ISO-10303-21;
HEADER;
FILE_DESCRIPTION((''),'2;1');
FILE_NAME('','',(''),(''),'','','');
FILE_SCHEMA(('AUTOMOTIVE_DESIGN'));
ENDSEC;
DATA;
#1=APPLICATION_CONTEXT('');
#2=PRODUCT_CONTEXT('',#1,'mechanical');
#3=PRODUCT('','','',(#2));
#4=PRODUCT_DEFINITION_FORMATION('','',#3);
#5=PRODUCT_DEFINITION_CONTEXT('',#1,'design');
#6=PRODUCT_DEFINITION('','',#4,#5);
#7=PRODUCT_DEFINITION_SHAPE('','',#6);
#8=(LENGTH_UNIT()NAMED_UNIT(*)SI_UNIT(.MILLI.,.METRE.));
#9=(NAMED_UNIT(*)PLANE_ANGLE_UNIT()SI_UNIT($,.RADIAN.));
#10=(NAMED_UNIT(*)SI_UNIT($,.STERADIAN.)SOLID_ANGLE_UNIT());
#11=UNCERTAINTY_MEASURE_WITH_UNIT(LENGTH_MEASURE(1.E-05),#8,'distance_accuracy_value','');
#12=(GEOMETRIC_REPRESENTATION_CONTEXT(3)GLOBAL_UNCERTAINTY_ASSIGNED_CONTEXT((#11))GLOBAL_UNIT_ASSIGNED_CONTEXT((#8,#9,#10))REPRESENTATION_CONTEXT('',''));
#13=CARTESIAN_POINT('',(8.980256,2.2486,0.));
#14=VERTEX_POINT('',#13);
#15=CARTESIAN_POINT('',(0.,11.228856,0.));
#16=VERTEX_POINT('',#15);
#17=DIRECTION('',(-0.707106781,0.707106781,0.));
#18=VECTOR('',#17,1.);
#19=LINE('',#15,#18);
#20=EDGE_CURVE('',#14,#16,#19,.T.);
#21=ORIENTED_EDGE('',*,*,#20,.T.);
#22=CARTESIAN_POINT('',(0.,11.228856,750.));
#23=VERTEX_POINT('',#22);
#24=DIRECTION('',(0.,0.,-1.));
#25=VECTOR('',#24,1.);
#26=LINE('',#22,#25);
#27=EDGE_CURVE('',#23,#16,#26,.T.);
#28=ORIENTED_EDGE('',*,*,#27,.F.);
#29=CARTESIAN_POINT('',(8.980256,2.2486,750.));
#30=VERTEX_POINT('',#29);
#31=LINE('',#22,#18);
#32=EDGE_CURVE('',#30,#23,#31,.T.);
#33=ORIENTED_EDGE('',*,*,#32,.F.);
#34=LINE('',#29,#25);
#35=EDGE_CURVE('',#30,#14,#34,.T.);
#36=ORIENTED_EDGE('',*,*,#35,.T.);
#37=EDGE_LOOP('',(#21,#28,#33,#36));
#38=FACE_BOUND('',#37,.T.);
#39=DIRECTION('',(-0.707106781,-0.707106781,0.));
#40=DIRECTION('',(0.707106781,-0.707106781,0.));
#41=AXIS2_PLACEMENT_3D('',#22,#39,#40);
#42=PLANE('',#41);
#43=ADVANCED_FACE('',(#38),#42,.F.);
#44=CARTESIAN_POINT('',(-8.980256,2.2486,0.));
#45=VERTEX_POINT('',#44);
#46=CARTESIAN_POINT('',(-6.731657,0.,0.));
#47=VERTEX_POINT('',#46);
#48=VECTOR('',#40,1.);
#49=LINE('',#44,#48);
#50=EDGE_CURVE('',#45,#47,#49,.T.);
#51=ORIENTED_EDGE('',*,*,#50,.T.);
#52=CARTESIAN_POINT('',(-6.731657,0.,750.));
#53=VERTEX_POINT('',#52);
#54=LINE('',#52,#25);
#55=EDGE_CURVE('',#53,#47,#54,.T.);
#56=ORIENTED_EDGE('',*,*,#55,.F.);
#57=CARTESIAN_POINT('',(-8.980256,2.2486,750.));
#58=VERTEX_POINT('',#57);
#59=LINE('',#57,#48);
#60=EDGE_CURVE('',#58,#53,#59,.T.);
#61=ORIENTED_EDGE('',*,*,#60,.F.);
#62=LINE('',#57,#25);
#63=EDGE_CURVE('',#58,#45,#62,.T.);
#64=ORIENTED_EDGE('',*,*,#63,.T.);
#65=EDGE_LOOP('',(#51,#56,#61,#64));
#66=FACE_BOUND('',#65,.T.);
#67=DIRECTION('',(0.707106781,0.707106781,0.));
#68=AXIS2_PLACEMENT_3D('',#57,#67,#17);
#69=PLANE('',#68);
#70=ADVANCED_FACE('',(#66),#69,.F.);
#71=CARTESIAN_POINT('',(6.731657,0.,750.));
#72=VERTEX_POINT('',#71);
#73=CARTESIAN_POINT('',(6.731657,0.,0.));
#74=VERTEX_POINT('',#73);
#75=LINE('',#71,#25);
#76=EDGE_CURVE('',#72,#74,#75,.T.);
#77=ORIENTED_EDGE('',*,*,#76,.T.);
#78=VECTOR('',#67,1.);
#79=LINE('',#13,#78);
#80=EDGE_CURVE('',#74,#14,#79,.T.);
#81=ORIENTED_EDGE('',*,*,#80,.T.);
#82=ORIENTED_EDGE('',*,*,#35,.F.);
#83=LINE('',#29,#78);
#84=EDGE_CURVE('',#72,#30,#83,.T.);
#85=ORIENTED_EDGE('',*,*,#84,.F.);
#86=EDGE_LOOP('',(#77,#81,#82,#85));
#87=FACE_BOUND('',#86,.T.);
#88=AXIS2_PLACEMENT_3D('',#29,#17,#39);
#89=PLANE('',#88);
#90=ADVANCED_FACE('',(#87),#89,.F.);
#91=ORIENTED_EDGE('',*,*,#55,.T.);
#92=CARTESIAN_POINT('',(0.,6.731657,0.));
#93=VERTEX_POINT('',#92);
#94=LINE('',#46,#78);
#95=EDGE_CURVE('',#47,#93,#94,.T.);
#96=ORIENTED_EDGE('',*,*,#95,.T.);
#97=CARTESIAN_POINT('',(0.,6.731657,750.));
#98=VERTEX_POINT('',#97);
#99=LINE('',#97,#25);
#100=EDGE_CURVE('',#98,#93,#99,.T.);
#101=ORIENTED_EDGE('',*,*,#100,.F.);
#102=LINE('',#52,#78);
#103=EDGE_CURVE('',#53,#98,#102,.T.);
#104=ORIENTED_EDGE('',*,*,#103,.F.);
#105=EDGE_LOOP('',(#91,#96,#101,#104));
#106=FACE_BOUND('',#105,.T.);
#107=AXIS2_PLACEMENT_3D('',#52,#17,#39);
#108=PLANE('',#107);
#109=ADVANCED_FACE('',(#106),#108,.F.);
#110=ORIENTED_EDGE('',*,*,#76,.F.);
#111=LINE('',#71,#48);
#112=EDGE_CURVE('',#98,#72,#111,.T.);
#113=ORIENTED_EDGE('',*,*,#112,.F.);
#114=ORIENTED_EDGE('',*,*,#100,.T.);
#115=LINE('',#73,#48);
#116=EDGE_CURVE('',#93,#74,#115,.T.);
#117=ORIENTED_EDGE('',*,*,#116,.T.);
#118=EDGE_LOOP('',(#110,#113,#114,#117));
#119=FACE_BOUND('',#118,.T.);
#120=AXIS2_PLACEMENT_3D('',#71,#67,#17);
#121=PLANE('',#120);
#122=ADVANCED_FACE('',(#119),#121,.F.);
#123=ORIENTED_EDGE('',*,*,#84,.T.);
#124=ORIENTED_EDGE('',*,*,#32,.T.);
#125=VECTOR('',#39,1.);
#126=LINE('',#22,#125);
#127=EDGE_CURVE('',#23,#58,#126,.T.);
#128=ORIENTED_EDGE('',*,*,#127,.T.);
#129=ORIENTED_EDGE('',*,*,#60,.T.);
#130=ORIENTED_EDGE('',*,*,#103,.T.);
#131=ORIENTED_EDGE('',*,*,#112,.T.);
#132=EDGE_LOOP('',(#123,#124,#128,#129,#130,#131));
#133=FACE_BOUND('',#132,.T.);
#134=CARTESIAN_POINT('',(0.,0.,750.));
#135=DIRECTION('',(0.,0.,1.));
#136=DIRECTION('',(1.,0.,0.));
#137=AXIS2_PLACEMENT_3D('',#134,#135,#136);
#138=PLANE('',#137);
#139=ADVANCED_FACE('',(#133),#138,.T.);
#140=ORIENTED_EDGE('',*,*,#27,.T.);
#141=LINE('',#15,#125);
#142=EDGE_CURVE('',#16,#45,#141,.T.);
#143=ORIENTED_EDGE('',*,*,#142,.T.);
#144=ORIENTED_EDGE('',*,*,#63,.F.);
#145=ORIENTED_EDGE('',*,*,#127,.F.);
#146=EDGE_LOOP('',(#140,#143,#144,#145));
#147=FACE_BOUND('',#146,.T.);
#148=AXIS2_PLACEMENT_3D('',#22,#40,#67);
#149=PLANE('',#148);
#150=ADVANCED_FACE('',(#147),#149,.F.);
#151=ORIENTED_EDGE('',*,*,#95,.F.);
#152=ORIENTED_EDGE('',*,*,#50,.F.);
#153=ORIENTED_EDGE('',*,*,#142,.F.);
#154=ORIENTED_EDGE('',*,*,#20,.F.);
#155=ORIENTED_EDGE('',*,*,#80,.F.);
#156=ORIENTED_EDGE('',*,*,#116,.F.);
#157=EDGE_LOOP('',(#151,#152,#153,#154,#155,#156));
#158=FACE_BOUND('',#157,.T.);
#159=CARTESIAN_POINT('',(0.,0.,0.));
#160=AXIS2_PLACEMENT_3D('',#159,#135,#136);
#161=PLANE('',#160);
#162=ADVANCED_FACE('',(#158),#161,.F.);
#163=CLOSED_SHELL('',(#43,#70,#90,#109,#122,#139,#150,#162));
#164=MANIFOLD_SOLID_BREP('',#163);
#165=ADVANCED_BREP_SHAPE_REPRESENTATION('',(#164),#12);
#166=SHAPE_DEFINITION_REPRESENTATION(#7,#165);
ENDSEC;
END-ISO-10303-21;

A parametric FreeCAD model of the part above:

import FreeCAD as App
import Part
import Sketcher


def add_polygon(sketch, points):
    """Adds a closed chain of lines whose ends are joined by coincident constraints."""
    first, n = sketch.GeometryCount, len(points)
    for a, b in zip(points, points[1:] + points[:1]):
        sketch.addGeometry(Part.LineSegment(App.Vector(*a, 0), App.Vector(*b, 0)), False)
    for i in range(n):
        sketch.addConstraint(Sketcher.Constraint("Coincident", first + i, 2, first + (i + 1) % n, 1))

doc = App.newDocument("Part")
body = doc.addObject("PartDesign::Body", "Body")

sketch1 = body.newObject("Sketcher::SketchObject", "Sketch")
sketch1.AttachmentSupport = (doc.getObject("XY_Plane"), [""])
sketch1.MapMode = "FlatFace"
add_polygon(sketch1, [(8.980256, 2.2486), (0, 11.228856), (-8.980256, 2.2486), (-6.731657, 0), (0, 6.731657), (6.731657, 0)])
sketch1.addConstraint(Sketcher.Constraint("Symmetric", 2, 2, 4, 2, -1, 1))
sketch1.addConstraint(Sketcher.Constraint("Symmetric", 1, 2, 5, 2, -2))
sketch1.addConstraint(Sketcher.Constraint("PointOnObject", 0, 2, -2))
sketch1.addConstraint(Sketcher.Constraint("PointOnObject", 2, 2, -1))
sketch1.addConstraint(Sketcher.Constraint("PointOnObject", 3, 2, -2))
sketch1.addConstraint(Sketcher.Constraint("Perpendicular", 0, 1))
sketch1.addConstraint(Sketcher.Constraint("Perpendicular", 1, 2))
sketch1.addConstraint(Sketcher.Constraint("Perpendicular", 2, 3))
sketch1.addConstraint(Sketcher.Constraint("Distance", 0, 12.7))
sketch1.addConstraint(Sketcher.Constraint("Distance", 2, 3.18))

sketch2 = body.newObject("Sketcher::SketchObject", "Sketch001")
sketch2.AttachmentSupport = (doc.getObject("XZ_Plane"), [""])
sketch2.MapMode = "FlatFace"
sketch2.addGeometry(Part.LineSegment(App.Vector(0, 0, 0), App.Vector(0, 750, 0)), False)
sketch2.addConstraint(Sketcher.Constraint("Vertical", 0))
sketch2.addConstraint(Sketcher.Constraint("Coincident", 0, 1, -1, 1))
sketch2.addConstraint(Sketcher.Constraint("DistanceY", 0, 1, 0, 2, 750.0))
doc.recompute()

additivepipe = body.newObject("PartDesign::AdditivePipe", "AdditivePipe")
additivepipe.Profile = sketch1
additivepipe.Spine = (sketch2, ["Edge1"])

doc.recompute()
